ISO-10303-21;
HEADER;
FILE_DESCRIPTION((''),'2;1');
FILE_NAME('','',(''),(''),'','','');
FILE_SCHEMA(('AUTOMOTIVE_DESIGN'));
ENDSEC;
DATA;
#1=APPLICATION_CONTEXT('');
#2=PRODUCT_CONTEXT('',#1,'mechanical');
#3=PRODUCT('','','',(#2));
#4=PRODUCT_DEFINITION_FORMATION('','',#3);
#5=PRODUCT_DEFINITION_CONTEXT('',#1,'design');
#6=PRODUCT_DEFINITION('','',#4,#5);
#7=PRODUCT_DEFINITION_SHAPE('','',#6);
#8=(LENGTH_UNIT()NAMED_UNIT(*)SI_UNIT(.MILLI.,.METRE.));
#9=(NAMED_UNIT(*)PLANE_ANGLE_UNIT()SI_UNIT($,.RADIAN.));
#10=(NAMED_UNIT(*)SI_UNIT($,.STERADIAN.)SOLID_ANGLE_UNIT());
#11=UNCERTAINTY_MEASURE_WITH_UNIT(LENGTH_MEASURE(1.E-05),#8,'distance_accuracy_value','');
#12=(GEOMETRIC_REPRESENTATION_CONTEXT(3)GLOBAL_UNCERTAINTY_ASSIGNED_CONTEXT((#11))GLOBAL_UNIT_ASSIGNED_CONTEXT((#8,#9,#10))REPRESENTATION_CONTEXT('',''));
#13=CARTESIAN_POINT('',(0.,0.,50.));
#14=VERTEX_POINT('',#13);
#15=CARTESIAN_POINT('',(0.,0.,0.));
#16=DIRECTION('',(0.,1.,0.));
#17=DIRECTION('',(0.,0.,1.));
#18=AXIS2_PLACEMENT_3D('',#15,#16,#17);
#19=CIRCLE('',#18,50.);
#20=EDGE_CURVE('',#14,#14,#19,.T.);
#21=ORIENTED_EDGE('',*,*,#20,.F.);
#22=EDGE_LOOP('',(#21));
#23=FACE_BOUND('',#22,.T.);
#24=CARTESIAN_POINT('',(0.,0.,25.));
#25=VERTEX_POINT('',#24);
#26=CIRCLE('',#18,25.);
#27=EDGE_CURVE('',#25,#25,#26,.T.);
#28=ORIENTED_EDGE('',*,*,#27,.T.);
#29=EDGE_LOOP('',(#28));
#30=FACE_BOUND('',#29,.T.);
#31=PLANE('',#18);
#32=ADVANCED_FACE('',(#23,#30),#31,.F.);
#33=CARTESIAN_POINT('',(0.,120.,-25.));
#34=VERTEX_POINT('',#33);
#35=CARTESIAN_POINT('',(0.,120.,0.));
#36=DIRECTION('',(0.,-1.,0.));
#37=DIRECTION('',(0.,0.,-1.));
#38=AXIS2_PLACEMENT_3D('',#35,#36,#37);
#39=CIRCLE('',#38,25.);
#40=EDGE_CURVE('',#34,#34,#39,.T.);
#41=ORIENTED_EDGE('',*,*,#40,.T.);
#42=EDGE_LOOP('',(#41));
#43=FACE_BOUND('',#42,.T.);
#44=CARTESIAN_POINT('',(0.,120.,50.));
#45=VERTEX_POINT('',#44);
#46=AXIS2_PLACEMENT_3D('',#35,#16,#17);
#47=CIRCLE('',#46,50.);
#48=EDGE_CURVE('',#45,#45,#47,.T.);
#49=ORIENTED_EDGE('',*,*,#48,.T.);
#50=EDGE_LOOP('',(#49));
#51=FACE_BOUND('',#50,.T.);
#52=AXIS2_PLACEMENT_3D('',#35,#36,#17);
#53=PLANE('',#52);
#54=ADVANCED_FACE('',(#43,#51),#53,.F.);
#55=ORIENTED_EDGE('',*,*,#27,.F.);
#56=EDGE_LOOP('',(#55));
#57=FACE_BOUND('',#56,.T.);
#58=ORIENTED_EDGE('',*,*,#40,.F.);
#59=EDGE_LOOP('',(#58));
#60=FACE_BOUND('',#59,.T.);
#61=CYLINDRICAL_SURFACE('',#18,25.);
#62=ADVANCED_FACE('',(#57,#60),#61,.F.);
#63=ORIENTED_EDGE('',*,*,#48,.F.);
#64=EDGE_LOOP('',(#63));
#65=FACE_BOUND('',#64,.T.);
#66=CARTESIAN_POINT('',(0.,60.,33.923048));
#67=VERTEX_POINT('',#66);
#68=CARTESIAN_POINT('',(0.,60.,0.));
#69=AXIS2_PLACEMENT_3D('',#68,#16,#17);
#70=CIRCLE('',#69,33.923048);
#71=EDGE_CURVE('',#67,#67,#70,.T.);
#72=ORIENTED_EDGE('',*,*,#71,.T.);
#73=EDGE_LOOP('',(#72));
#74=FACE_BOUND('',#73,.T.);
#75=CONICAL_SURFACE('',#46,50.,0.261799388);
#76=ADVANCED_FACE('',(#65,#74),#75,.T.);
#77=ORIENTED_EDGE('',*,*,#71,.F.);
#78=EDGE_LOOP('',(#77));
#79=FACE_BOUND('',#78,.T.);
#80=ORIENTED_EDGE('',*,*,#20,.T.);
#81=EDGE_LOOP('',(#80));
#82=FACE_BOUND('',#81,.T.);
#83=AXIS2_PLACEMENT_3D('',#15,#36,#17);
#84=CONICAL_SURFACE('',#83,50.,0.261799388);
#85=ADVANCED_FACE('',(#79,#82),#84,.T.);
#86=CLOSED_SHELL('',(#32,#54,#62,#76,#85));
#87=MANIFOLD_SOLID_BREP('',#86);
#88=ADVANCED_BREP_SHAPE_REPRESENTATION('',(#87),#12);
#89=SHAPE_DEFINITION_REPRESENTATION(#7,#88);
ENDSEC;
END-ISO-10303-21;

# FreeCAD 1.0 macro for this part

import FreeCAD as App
import Part
import Sketcher

doc = App.newDocument("Part")
body = doc.addObject("PartDesign::Body", "Body")

# Sketch on XZ plane
sketch1 = doc.addObject("Sketcher::SketchObject", "Sketch")
body.addObject(sketch1)
sketch1.AttachmentSupport = (doc.XZ_Plane, [""])
sketch1.MapMode = "FlatFace"
sketch1.addGeometry(Part.Circle(App.Vector(0, 0, 0), App.Vector(0, 0, 1), 50), False)
sketch1.addConstraint(Sketcher.Constraint("Coincident", 0, 3, -1, 1))
sketch1.addConstraint(Sketcher.Constraint("Diameter", 0, 100.0))
pad1 = doc.addObject("PartDesign::Pad", "Pad")
body.addObject(pad1)
pad1.Profile = sketch1
pad1.Length = 60
pad1.Reversed = True
pad1.TaperAngle = -15
doc.recompute()

datumplane = doc.addObject("PartDesign::Plane", "DatumPlane")
body.addObject(datumplane)
datumplane.AttachmentSupport = (doc.XZ_Plane, [""])
datumplane.MapMode = "FlatFace"
datumplane.AttachmentOffset = App.Placement(App.Vector(0, 0, -60), App.Rotation())
mirrored = doc.addObject("PartDesign::Mirrored", "Mirrored")
body.addObject(mirrored)
mirrored.Originals = [pad1]
mirrored.MirrorPlane = (datumplane, [""])
body.Tip = mirrored

# Sketch on XZ plane
sketch2 = doc.addObject("Sketcher::SketchObject", "Sketch001")
body.addObject(sketch2)
sketch2.AttachmentSupport = (doc.XZ_Plane, [""])
sketch2.MapMode = "FlatFace"
sketch2.AttachmentOffset = App.Placement(App.Vector(0, 0, -120), App.Rotation())
sketch2.addGeometry(Part.Circle(App.Vector(0, 0, 0), App.Vector(0, 0, 1), 25), False)
sketch2.addConstraint(Sketcher.Constraint("Coincident", 0, 3, -1, 1))
sketch2.addConstraint(Sketcher.Constraint("Diameter", 0, 50.0))
pocket1 = doc.addObject("PartDesign::Pocket", "Pocket")
body.addObject(pocket1)
pocket1.Profile = sketch2
pocket1.Type = "ThroughAll"
pocket1.Midplane = True

doc.recompute()
